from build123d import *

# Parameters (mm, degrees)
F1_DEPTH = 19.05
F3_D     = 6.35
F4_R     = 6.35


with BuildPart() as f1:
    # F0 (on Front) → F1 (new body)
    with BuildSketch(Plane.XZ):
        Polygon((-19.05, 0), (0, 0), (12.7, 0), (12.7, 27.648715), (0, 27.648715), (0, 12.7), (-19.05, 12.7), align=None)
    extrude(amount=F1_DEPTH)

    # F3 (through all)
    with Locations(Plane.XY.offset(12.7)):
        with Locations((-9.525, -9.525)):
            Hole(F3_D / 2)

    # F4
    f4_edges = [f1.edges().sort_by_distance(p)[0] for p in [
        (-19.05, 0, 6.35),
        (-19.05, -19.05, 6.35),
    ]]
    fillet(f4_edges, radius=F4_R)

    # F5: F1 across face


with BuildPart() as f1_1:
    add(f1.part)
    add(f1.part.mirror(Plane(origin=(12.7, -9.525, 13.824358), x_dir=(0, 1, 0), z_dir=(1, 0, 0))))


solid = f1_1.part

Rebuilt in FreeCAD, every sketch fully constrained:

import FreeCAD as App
import Part
import Sketcher

V = App.Vector
Q = App.Units.Quantity


def edges_at(feature, points):
    """Names of the edges that pass closest to the given points."""
    edges = feature.Shape.Edges
    near = lambda p: min(range(len(edges)), key=lambda i: edges[i].distToShape(Part.Vertex(*p))[0])
    return sorted({f"Edge{near(p) + 1}" for p in points})


def add_polygon(sketch, points):
    """Adds a closed chain of lines whose ends are joined by coincident constraints."""
    first, n = sketch.GeometryCount, len(points)
    for a, b in zip(points, points[1:] + points[:1]):
        sketch.addGeometry(Part.LineSegment(App.Vector(*a, 0), App.Vector(*b, 0)), False)
    for i in range(n):
        sketch.addConstraint(Sketcher.Constraint("Coincident", first + i, 2, first + (i + 1) % n, 1))

doc = App.newDocument("Part")
body = doc.addObject("PartDesign::Body", "Body")

# Sketch on XZ plane
sketch1 = doc.addObject("Sketcher::SketchObject", "Sketch")
body.addObject(sketch1)
sketch1.AttachmentSupport = (doc.XZ_Plane, [""])
sketch1.MapMode = "FlatFace"
add_polygon(sketch1, [(-19.05, 0), (12.7, 0), (12.7, 27.648715), (0, 27.648715), (0, 12.7), (-19.05, 12.7)])  # lines 0-5
sketch1.addConstraint(Sketcher.Constraint("Horizontal", 0))
sketch1.addConstraint(Sketcher.Constraint("Vertical", 1))
sketch1.addConstraint(Sketcher.Constraint("Horizontal", 2))
sketch1.addConstraint(Sketcher.Constraint("Vertical", 3))
sketch1.addConstraint(Sketcher.Constraint("Horizontal", 4))
sketch1.addConstraint(Sketcher.Constraint("Vertical", 5))
sketch1.addConstraint(Sketcher.Constraint("PointOnObject", 0, 2, -1))
sketch1.addConstraint(Sketcher.Constraint("PointOnObject", 2, 2, -2))
sketch1.addConstraint(Sketcher.Constraint("Equal", 2, 5))
sketch1.addConstraint(Sketcher.Constraint("DistanceX", 2, 2, 2, 1, Q("0.5 in")))
sketch1.addConstraint(Sketcher.Constraint("DistanceX", 0, 1, 0, 2, Q("1.25 in")))
sketch1.addConstraint(Sketcher.Constraint("DistanceY", 1, 1, 1, 2, Q("27.648715 mm")))
pad1 = doc.addObject("PartDesign::Pad", "Pad")
body.addObject(pad1)
pad1.Profile = sketch1
pad1.Length = Q("0.75 in")

# Sketch on XY plane
sketch2 = doc.addObject("Sketcher::SketchObject", "Sketch001")
body.addObject(sketch2)
sketch2.AttachmentSupport = (doc.XY_Plane, [""])
sketch2.MapMode = "FlatFace"
sketch2.AttachmentOffset = App.Placement(V(0, 0, 0.5 * 25.4), App.Rotation())
sketch2.addGeometry(Part.Circle(V(-9.525, -9.525, 0), V(0, 0, 1), 3.175), False)
sketch2.addConstraint(Sketcher.Constraint("Diameter", 0, Q("0.25 in")))
sketch2.addConstraint(Sketcher.Constraint("DistanceX", 0, 3, -1, 1, Q("0.375 in")))
sketch2.addConstraint(Sketcher.Constraint("DistanceY", 0, 3, -1, 1, Q("0.375 in")))
doc.recompute()
hole = doc.addObject("PartDesign::Hole", "Hole")
body.addObject(hole)
hole.Profile = sketch2
hole.ThreadType = "None"
hole.Diameter = Q("0.25 in")
hole.DepthType = "ThroughAll"
doc.recompute()

fillet = doc.addObject("PartDesign::Fillet", "Fillet")
body.addObject(fillet)
fillet.Base = (hole, edges_at(hole, [(-19.05, 0, 6.35), (-19.05, -19.05, 6.35)]))
fillet.Radius = Q("0.25 in")
body2 = doc.addObject("PartDesign::Body", "Body001")
doc.recompute()

body2.BaseFeature = body
doc.recompute()

mirroring = doc.addObject("Part::Mirroring", "Mirroring")
mirroring.Source = body
mirroring.Base = V(12.7, -9.525, 13.824358)
mirroring.Normal = V(1, 0, 0)
body3 = doc.addObject("PartDesign::Body", "Body002")
body3.BaseFeature = mirroring
boolean = doc.addObject("PartDesign::Boolean", "Boolean")
body2.addObject(boolean)
boolean.Type = "Fuse"
boolean.addObjects([body3])
doc.recompute()
mirroring.Visibility = False

doc.recompute()
